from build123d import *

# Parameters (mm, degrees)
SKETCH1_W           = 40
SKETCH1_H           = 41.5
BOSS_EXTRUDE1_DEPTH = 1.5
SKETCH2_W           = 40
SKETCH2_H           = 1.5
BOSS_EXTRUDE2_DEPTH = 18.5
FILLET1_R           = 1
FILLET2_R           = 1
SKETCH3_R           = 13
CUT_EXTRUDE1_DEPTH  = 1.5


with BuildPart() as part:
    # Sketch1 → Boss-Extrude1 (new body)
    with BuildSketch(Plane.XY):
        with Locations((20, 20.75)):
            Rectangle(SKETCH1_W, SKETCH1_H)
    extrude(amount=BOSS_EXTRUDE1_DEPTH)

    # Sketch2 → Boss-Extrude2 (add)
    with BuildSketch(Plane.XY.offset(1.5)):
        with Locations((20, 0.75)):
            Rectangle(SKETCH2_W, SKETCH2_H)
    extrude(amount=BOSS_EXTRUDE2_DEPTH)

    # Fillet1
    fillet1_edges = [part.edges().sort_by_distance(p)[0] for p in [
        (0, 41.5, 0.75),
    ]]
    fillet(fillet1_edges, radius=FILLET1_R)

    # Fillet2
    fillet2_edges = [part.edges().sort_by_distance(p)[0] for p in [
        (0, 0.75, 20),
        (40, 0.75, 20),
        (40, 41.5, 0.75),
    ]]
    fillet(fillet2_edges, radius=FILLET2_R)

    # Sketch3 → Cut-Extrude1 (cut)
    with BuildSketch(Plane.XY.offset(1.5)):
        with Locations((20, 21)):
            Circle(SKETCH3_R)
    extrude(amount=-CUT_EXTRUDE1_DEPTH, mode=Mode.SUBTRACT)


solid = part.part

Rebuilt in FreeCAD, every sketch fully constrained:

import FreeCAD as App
import Part
import Sketcher

V = App.Vector
Q = App.Units.Quantity


def edges_at(feature, points):
    """Names of the edges that pass closest to the given points."""
    edges = feature.Shape.Edges
    near = lambda p: min(range(len(edges)), key=lambda i: edges[i].distToShape(Part.Vertex(*p))[0])
    return sorted({f"Edge{near(p) + 1}" for p in points})


def add_polygon(sketch, points):
    """Adds a closed chain of lines whose ends are joined by coincident constraints."""
    first, n = sketch.GeometryCount, len(points)
    for a, b in zip(points, points[1:] + points[:1]):
        sketch.addGeometry(Part.LineSegment(App.Vector(*a, 0), App.Vector(*b, 0)), False)
    for i in range(n):
        sketch.addConstraint(Sketcher.Constraint("Coincident", first + i, 2, first + (i + 1) % n, 1))

doc = App.newDocument("Part")
body = doc.addObject("PartDesign::Body", "Body")

sketch1 = body.newObject("Sketcher::SketchObject", "Sketch")
sketch1.AttachmentSupport = (doc.getObject("XY_Plane"), [""])
sketch1.MapMode = "FlatFace"
add_polygon(sketch1, [(0, 42), (0, 0), (40, 0), (40, 42)])
sketch1.addConstraint(Sketcher.Constraint("Vertical", 0))
sketch1.addConstraint(Sketcher.Constraint("Horizontal", 1))
sketch1.addConstraint(Sketcher.Constraint("Vertical", 2))
sketch1.addConstraint(Sketcher.Constraint("Horizontal", 3))
sketch1.addConstraint(Sketcher.Constraint("Coincident", 0, 2, -1, 1))
sketch1.addConstraint(Sketcher.Constraint("DistanceX", 1, 1, 1, 2, Q("40 mm")))
sketch1.addConstraint(Sketcher.Constraint("DistanceY", 0, 2, 0, 1, Q("41.5 mm")))
pad1 = body.newObject("PartDesign::Pad", "Pad")
pad1.Profile = sketch1
pad1.Length = 1.5

sketch2 = body.newObject("Sketcher::SketchObject", "Sketch001")
sketch2.AttachmentSupport = (doc.getObject("XY_Plane"), [""])
sketch2.MapMode = "FlatFace"
sketch2.AttachmentOffset = App.Placement(V(0, 0, 1.5), App.Rotation())
add_polygon(sketch2, [(0, 1.5), (0, 0), (40, 0), (40, 1.5)])
sketch2.addConstraint(Sketcher.Constraint("Vertical", 0))
sketch2.addConstraint(Sketcher.Constraint("Horizontal", 1))
sketch2.addConstraint(Sketcher.Constraint("Vertical", 2))
sketch2.addConstraint(Sketcher.Constraint("Horizontal", 3))
sketch2.addConstraint(Sketcher.Constraint("Coincident", 0, 2, -1, 1))
sketch2.addConstraint(Sketcher.Constraint("DistanceX", 1, 1, 1, 2, Q("40 mm")))
sketch2.addConstraint(Sketcher.Constraint("DistanceY", 0, 2, 0, 1, Q("1.5 mm")))
pad2 = body.newObject("PartDesign::Pad", "Pad001")
pad2.Profile = sketch2
pad2.Length = 18.5
doc.recompute()

fillet = body.newObject("PartDesign::Fillet", "Fillet")
fillet.Base = (pad2, edges_at(pad2, [(0, 41.5, 0.75)]))
fillet.Radius = 1
doc.recompute()

fillet2 = body.newObject("PartDesign::Fillet", "Fillet001")
fillet2.Base = (fillet, edges_at(fillet, [(0, 0.75, 20), (40, 0.75, 20), (40, 41.5, 0.75)]))
fillet2.Radius = 1

sketch3 = body.newObject("Sketcher::SketchObject", "Sketch002")
sketch3.AttachmentSupport = (doc.getObject("XY_Plane"), [""])
sketch3.MapMode = "FlatFace"
sketch3.AttachmentOffset = App.Placement(V(0, 0, 1.5), App.Rotation())
sketch3.addGeometry(Part.Circle(V(20, 21, 0), V(0, 0, 1), 13), False)
sketch3.addConstraint(Sketcher.Constraint("Diameter", 0, Q("26 mm")))
sketch3.addConstraint(Sketcher.Constraint("DistanceX", -1, 1, 0, 3, Q("20 mm")))
sketch3.addConstraint(Sketcher.Constraint("DistanceY", -1, 1, 0, 3, Q("21 mm")))
pocket1 = body.newObject("PartDesign::Pocket", "Pocket")
pocket1.Profile = sketch3
pocket1.Length = 1.5

doc.recompute()
